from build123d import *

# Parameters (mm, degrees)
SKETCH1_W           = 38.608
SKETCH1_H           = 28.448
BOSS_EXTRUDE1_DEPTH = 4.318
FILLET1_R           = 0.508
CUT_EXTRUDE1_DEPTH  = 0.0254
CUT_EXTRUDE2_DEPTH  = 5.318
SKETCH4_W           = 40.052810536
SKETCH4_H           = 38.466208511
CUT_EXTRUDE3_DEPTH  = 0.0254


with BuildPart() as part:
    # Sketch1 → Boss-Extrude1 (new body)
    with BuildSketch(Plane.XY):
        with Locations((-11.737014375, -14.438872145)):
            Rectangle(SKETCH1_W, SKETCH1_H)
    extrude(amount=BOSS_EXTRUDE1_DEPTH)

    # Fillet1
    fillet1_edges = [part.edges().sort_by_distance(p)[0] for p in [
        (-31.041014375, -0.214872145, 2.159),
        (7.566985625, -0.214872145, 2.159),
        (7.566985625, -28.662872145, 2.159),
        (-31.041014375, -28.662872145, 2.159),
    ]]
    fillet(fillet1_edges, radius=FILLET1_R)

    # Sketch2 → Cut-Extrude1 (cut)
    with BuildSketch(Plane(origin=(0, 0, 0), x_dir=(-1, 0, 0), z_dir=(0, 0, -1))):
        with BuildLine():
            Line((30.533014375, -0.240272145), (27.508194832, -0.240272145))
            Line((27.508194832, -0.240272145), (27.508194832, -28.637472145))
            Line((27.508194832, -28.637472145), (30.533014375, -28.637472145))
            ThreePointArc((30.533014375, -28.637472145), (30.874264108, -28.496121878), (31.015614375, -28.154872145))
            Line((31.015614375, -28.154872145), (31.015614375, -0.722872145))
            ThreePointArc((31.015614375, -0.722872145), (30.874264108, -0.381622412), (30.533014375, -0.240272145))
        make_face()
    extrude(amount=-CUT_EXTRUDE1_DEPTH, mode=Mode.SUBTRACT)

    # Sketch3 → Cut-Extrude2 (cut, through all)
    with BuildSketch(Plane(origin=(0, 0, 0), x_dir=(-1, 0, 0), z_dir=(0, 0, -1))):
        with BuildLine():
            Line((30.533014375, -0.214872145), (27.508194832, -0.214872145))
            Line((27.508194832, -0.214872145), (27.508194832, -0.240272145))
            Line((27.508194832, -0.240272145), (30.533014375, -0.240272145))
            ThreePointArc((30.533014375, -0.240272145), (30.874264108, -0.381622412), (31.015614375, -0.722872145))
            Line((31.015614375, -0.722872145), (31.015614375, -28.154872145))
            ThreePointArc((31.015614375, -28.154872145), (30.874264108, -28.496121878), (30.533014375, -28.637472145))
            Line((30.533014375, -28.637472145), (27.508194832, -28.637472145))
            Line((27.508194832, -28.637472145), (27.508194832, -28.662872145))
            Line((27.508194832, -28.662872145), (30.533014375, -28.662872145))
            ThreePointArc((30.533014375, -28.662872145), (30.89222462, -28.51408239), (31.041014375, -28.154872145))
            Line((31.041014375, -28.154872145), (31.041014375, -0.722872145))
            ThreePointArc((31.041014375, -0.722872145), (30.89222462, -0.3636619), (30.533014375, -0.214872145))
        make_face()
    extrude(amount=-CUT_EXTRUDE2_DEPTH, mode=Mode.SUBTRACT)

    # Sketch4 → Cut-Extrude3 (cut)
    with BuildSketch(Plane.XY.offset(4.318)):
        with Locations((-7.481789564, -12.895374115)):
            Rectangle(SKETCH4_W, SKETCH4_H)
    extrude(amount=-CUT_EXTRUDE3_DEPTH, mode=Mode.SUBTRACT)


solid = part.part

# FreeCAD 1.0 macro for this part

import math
import FreeCAD as App
import Part
import Sketcher
from FreeCAD import Vector
Q = App.Units.Quantity


def edges_at(feature, points):
    """Names of the edges that pass closest to the given points."""
    edges = feature.Shape.Edges
    near = lambda p: min(range(len(edges)), key=lambda i: edges[i].distToShape(Part.Vertex(*p))[0])
    return sorted({f"Edge{near(p) + 1}" for p in points})

doc = App.newDocument("Part")
params = doc.addObject("Spreadsheet::Sheet", "Params")
for row, (alias, value) in enumerate([
    ("sketch1_width", "1.52 in"),
    ("sketch1_height", "1.12 in"),
    ("pad1_length", "0.17 in"),
    ("fillet_radius", "0.02 in"),
    ("sketch2_radius", "0.019 in"),
    ("sketch2_height", "1.08 in"),
    ("pocket1_length", "0.001 in"),
    ("sketch3_radius", "0.02 in"),
    ("sketch3_radius2", "0.019 in"),
    ("sketch3_height", "1.08 in"),
    ("pocket3_length", "0.001 in"),
], start=1):
    params.set(f"A{row}", alias)
    params.set(f"B{row}", "=" + value)
    params.setAlias(f"B{row}", alias)

body = doc.addObject("PartDesign::Body", "Body")

# Sketch on XY plane
sketch1 = body.newObject("Sketcher::SketchObject", "Sketch")
sketch1.AttachmentSupport = (doc.getObject("XY_Plane"), [""])
sketch1.MapMode = "FlatFace"
sketch1.addGeometry([
    Part.LineSegment(Vector(-31, 0, 0), Vector(-31, -29, 0)),
    Part.LineSegment(Vector(-31, -29, 0), Vector(8, -29, 0)),
    Part.LineSegment(Vector(8, -29, 0), Vector(8, 0, 0)),
    Part.LineSegment(Vector(8, 0, 0), Vector(-31, 0, 0)),
], False)
sketch1.addConstraint([
    Sketcher.Constraint("Coincident", 0, 2, 1, 1),
    Sketcher.Constraint("Coincident", 1, 2, 2, 1),
    Sketcher.Constraint("Coincident", 2, 2, 3, 1),
    Sketcher.Constraint("Coincident", 3, 2, 0, 1),
    Sketcher.Constraint("Vertical", 0),
    Sketcher.Constraint("Horizontal", 1),
    Sketcher.Constraint("Vertical", 2),
    Sketcher.Constraint("Horizontal", 3),
    Sketcher.Constraint("DistanceX", 1, 1, 1, 2, Q("1.52 in")),
    Sketcher.Constraint("DistanceY", 0, 2, 0, 1, Q("1.12 in")),
    Sketcher.Constraint("DistanceX", 0, 2, -1, 1, Q("31.041014 mm")),
    Sketcher.Constraint("DistanceY", 0, 2, -1, 1, Q("28.662872 mm")),
])
sketch1.setExpression("Constraints[8]", "Params.sketch1_width")
sketch1.setExpression("Constraints[9]", "Params.sketch1_height")
pad1 = body.newObject("PartDesign::Pad", "Pad")
pad1.Profile = sketch1
pad1.setExpression("Length", "Params.pad1_length")
doc.recompute()

fillet = body.newObject("PartDesign::Fillet", "Fillet")
fillet.Base = (pad1, edges_at(pad1, [
    (-31.041, -0.215, 2.159),
    (7.567, -0.215, 2.159),
    (7.567, -28.663, 2.159),
    (-31.041, -28.663, 2.159),
]))
fillet.setExpression("Radius", "Params.fillet_radius")

# Sketch on XY plane
sketch2 = body.newObject("Sketcher::SketchObject", "Sketch001")
sketch2.AttachmentSupport = (doc.getObject("XY_Plane"), [""])
sketch2.MapMode = "FlatFace"
sketch2.addGeometry([
    Part.LineSegment(Vector(-30.53, -0.24, 0), Vector(-27.51, -0.24, 0)),  # 0
    Part.LineSegment(Vector(-27.51, -0.24, 0), Vector(-27.51, -28.64, 0)),  # 1
    Part.LineSegment(Vector(-27.51, -28.64, 0), Vector(-30.53, -28.64, 0)),  # 2
    Part.ArcOfCircle(Part.Circle(Vector(-30.53, -28.15, 0), Vector(0, 0, 1), 0.48), math.radians(180), math.radians(270)),  # 3
    Part.LineSegment(Vector(-31.02, -28.15, 0), Vector(-31.02, -0.72, 0)),  # 4
    Part.ArcOfCircle(Part.Circle(Vector(-30.53, -0.72, 0), Vector(0, 0, 1), 0.48), math.radians(90), math.radians(180)),  # 5
], False)
sketch2.addConstraint([
    Sketcher.Constraint("Coincident", 0, 2, 1, 1),
    Sketcher.Constraint("Coincident", 1, 2, 2, 1),
    Sketcher.Constraint("Tangent", 2, 2, 3, 2),
    Sketcher.Constraint("Tangent", 3, 1, 4, 1),
    Sketcher.Constraint("Tangent", 4, 2, 5, 2),
    Sketcher.Constraint("Tangent", 5, 1, 0, 1),
    Sketcher.Constraint("Horizontal", 0),
    Sketcher.Constraint("Vertical", 1),
    Sketcher.Constraint("Horizontal", 2),
    Sketcher.Constraint("Vertical", 4),
    Sketcher.Constraint("Equal", 3, 5),
    Sketcher.Constraint("Radius", 3, Q("0.019 in")),
    Sketcher.Constraint("DistanceY", 4, 1, 4, 2, Q("1.08 in")),
    Sketcher.Constraint("DistanceX", 0, 1, 0, 2, Q("3.02482 mm")),
    Sketcher.Constraint("DistanceX", 3, 3, -1, 1, Q("30.533014 mm")),
    Sketcher.Constraint("DistanceY", 3, 3, -1, 1, Q("28.154872 mm")),
])
sketch2.setExpression("Constraints[11]", "Params.sketch2_radius")
sketch2.setExpression("Constraints[12]", "Params.sketch2_height")
pocket1 = body.newObject("PartDesign::Pocket", "Pocket")
pocket1.Profile = sketch2
pocket1.setExpression("Length", "Params.pocket1_length")
pocket1.Reversed = True

# Sketch on XY plane
sketch3 = body.newObject("Sketcher::SketchObject", "Sketch002")
sketch3.AttachmentSupport = (doc.getObject("XY_Plane"), [""])
sketch3.MapMode = "FlatFace"
sketch3.addGeometry([
    Part.LineSegment(Vector(-30.533, -0.215, 0), Vector(-27.508, -0.215, 0)),  # 0
    Part.LineSegment(Vector(-27.508, -0.215, 0), Vector(-27.508, -0.24, 0)),  # 1
    Part.LineSegment(Vector(-27.508, -0.24, 0), Vector(-30.533, -0.24, 0)),  # 2
    Part.ArcOfCircle(Part.Circle(Vector(-30.533, -0.723, 0), Vector(0, 0, 1), 0.483), math.radians(90), math.radians(180)),  # 3
    Part.LineSegment(Vector(-31.016, -0.723, 0), Vector(-31.016, -28.155, 0)),  # 4
    Part.ArcOfCircle(Part.Circle(Vector(-30.533, -28.155, 0), Vector(0, 0, 1), 0.483), math.radians(180), math.radians(270)),  # 5
    Part.LineSegment(Vector(-30.533, -28.637, 0), Vector(-27.508, -28.637, 0)),  # 6
    Part.LineSegment(Vector(-27.508, -28.637, 0), Vector(-27.508, -28.663, 0)),  # 7
    Part.LineSegment(Vector(-27.508, -28.663, 0), Vector(-30.533, -28.663, 0)),  # 8
    Part.ArcOfCircle(Part.Circle(Vector(-30.533, -28.155, 0), Vector(0, 0, 1), 0.508), math.radians(180), math.radians(270)),  # 9
    Part.LineSegment(Vector(-31.041, -28.155, 0), Vector(-31.041, -0.723, 0)),  # 10
    Part.ArcOfCircle(Part.Circle(Vector(-30.533, -0.723, 0), Vector(0, 0, 1), 0.508), math.radians(90), math.radians(180)),  # 11
], False)
sketch3.addConstraint([
    Sketcher.Constraint("Coincident", 0, 2, 1, 1),
    Sketcher.Constraint("Coincident", 1, 2, 2, 1),
    Sketcher.Constraint("Tangent", 2, 2, 3, 1),
    Sketcher.Constraint("Tangent", 3, 2, 4, 1),
    Sketcher.Constraint("Tangent", 4, 2, 5, 1),
    Sketcher.Constraint("Tangent", 5, 2, 6, 1),
    Sketcher.Constraint("Coincident", 6, 2, 7, 1),
    Sketcher.Constraint("Coincident", 7, 2, 8, 1),
    Sketcher.Constraint("Tangent", 8, 2, 9, 2),
    Sketcher.Constraint("Tangent", 9, 1, 10, 1),
    Sketcher.Constraint("Tangent", 10, 2, 11, 2),
    Sketcher.Constraint("Tangent", 11, 1, 0, 1),
    Sketcher.Constraint("Horizontal", 0),
    Sketcher.Constraint("Vertical", 1),
    Sketcher.Constraint("Horizontal", 2),
    Sketcher.Constraint("Vertical", 4),
    Sketcher.Constraint("Horizontal", 6),
    Sketcher.Constraint("Vertical", 7),
    Sketcher.Constraint("Horizontal", 8),
    Sketcher.Constraint("Vertical", 10),
    Sketcher.Constraint("Coincident", 9, 3, 5, 3),
    Sketcher.Constraint("Coincident", 11, 3, 3, 3),
    Sketcher.Constraint("Equal", 3, 5),
    Sketcher.Constraint("Vertical", 1, 2, 6, 2),
    Sketcher.Constraint("Radius", 9, Q("0.02 in")),
    Sketcher.Constraint("Radius", 3, Q("0.019 in")),
    Sketcher.Constraint("DistanceY", 4, 2, 4, 1, Q("1.08 in")),
    Sketcher.Constraint("DistanceX", 0, 1, 0, 2, Q("3.02482 mm")),
    Sketcher.Constraint("DistanceX", 3, 3, -1, 1, Q("30.533014 mm")),
    Sketcher.Constraint("DistanceY", 3, 3, -1, 1, Q("0.722872 mm")),
])
sketch3.setExpression("Constraints[24]", "Params.sketch3_radius")
sketch3.setExpression("Constraints[25]", "Params.sketch3_radius2")
sketch3.setExpression("Constraints[26]", "Params.sketch3_height")
pocket2 = body.newObject("PartDesign::Pocket", "Pocket001")
pocket2.Profile = sketch3
pocket2.Type = "ThroughAll"
pocket2.Reversed = True

# Sketch on XY plane
sketch4 = body.newObject("Sketcher::SketchObject", "Sketch003")
sketch4.AttachmentSupport = (doc.getObject("XY_Plane"), [""])
sketch4.MapMode = "FlatFace"
sketch4.AttachmentOffset = App.Placement(Vector(0, 0, 0.17 * 25.4), App.Rotation())
sketch4.addGeometry([
    Part.LineSegment(Vector(-28, 6, 0), Vector(-28, -32, 0)),
    Part.LineSegment(Vector(-28, -32, 0), Vector(13, -32, 0)),
    Part.LineSegment(Vector(13, -32, 0), Vector(13, 6, 0)),
    Part.LineSegment(Vector(13, 6, 0), Vector(-28, 6, 0)),
], False)
sketch4.addConstraint([
    Sketcher.Constraint("Coincident", 0, 2, 1, 1),
    Sketcher.Constraint("Coincident", 1, 2, 2, 1),
    Sketcher.Constraint("Coincident", 2, 2, 3, 1),
    Sketcher.Constraint("Coincident", 3, 2, 0, 1),
    Sketcher.Constraint("Vertical", 0),
    Sketcher.Constraint("Horizontal", 1),
    Sketcher.Constraint("Vertical", 2),
    Sketcher.Constraint("Horizontal", 3),
    Sketcher.Constraint("DistanceX", 1, 1, 1, 2, Q("40.052811 mm")),
    Sketcher.Constraint("DistanceY", 0, 2, 0, 1, Q("38.466209 mm")),
    Sketcher.Constraint("DistanceY", 0, 2, -1, 1, Q("32.128478 mm")),
    Sketcher.Constraint("DistanceX", 0, 2, -1, 1, Q("27.508195 mm")),
])
pocket3 = body.newObject("PartDesign::Pocket", "Pocket002")
pocket3.Profile = sketch4
pocket3.setExpression("Length", "Params.pocket3_length")

doc.recompute()
